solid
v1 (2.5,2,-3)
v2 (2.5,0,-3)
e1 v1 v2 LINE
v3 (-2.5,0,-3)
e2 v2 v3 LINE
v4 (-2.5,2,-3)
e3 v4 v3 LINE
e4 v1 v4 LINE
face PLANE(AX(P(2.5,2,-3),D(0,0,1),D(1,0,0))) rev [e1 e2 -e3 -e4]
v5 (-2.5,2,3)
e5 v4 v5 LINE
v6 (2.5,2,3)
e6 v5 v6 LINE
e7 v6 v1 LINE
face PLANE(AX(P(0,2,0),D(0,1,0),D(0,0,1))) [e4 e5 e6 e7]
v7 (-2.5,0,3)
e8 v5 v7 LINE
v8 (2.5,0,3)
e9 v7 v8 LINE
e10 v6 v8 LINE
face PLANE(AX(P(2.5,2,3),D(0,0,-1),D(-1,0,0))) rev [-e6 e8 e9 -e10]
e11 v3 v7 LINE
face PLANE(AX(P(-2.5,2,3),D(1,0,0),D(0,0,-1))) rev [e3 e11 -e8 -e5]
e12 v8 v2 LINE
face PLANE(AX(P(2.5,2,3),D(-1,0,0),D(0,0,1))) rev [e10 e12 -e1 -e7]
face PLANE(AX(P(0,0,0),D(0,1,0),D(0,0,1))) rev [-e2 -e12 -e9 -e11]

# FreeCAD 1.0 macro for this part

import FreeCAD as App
import Part
import Sketcher

V = App.Vector
Q = App.Units.Quantity

doc = App.newDocument("Part")
body = doc.addObject("PartDesign::Body", "Body")

# Sketch on XZ plane
sketch1 = body.newObject("Sketcher::SketchObject", "Sketch")
sketch1.AttachmentSupport = (doc.getObject("XZ_Plane"), [""])
sketch1.MapMode = "FlatFace"
sketch1.addGeometry([
    Part.LineSegment(V(-2.5, -3, 0), V(-2.5, 3, 0)),
    Part.LineSegment(V(-2.5, 3, 0), V(2.5, 3, 0)),
    Part.LineSegment(V(2.5, 3, 0), V(2.5, -3, 0)),
    Part.LineSegment(V(2.5, -3, 0), V(-2.5, -3, 0)),
], False)
sketch1.addConstraint([
    Sketcher.Constraint("Coincident", 0, 2, 1, 1),
    Sketcher.Constraint("Coincident", 1, 2, 2, 1),
    Sketcher.Constraint("Coincident", 2, 2, 3, 1),
    Sketcher.Constraint("Coincident", 3, 2, 0, 1),
    Sketcher.Constraint("Vertical", 0),
    Sketcher.Constraint("Horizontal", 1),
    Sketcher.Constraint("Vertical", 2),
    Sketcher.Constraint("Horizontal", 3),
    Sketcher.Constraint("Symmetric", 0, 2, 2, 2, -1, 1),
    Sketcher.Constraint("DistanceX", 1, 1, 1, 2, Q("5 mm")),
    Sketcher.Constraint("DistanceY", 0, 1, 0, 2, Q("6 mm")),
])
pad1 = body.newObject("PartDesign::Pad", "Pad")
pad1.Profile = sketch1
pad1.Length = 2
pad1.Reversed = True

doc.recompute()
